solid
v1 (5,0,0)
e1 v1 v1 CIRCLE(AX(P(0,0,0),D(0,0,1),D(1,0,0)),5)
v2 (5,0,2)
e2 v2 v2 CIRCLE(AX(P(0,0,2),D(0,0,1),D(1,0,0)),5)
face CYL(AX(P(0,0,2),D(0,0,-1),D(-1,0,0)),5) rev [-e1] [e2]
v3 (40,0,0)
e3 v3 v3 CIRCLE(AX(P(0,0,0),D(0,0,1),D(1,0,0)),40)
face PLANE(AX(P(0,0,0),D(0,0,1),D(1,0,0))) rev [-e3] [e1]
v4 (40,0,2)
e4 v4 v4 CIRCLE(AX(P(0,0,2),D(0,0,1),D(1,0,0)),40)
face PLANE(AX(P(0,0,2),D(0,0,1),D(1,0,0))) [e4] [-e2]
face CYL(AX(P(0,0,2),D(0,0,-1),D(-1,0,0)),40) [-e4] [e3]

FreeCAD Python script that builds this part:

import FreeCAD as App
import Part
import Sketcher

doc = App.newDocument("Part")
params = doc.addObject("Spreadsheet::Sheet", "Params")
for row, (alias, value) in enumerate([
    ("sketch1_diameter", "80 mm"),
    ("sketch1_diameter2", "10 mm"),
    ("pad1_length", "2 mm"),
], start=1):
    params.set(f"A{row}", alias)
    params.set(f"B{row}", "=" + value)
    params.setAlias(f"B{row}", alias)

body = doc.addObject("PartDesign::Body", "Body")

# Sketch on XY plane
sketch1 = body.newObject("Sketcher::SketchObject", "Sketch")
sketch1.AttachmentSupport = (doc.getObject("XY_Plane"), [""])
sketch1.MapMode = "FlatFace"
sketch1.addGeometry(Part.Circle(App.Vector(0, 0, 0), App.Vector(0, 0, 1), 40), False)
sketch1.addGeometry(Part.Circle(App.Vector(0, 0, 0), App.Vector(0, 0, 1), 5), False)
sketch1.addConstraint(Sketcher.Constraint("Coincident", 0, 3, -1, 1))
sketch1.addConstraint(Sketcher.Constraint("Coincident", 1, 3, -1, 1))
sketch1.addConstraint(Sketcher.Constraint("Diameter", 0, 80.0))
sketch1.addConstraint(Sketcher.Constraint("Diameter", 1, 10.0))
sketch1.setExpression("Constraints[2]", "Params.sketch1_diameter")
sketch1.setExpression("Constraints[3]", "Params.sketch1_diameter2")
pad1 = body.newObject("PartDesign::Pad", "Pad")
pad1.Profile = sketch1
pad1.setExpression("Length", "Params.pad1_length")

doc.recompute()
